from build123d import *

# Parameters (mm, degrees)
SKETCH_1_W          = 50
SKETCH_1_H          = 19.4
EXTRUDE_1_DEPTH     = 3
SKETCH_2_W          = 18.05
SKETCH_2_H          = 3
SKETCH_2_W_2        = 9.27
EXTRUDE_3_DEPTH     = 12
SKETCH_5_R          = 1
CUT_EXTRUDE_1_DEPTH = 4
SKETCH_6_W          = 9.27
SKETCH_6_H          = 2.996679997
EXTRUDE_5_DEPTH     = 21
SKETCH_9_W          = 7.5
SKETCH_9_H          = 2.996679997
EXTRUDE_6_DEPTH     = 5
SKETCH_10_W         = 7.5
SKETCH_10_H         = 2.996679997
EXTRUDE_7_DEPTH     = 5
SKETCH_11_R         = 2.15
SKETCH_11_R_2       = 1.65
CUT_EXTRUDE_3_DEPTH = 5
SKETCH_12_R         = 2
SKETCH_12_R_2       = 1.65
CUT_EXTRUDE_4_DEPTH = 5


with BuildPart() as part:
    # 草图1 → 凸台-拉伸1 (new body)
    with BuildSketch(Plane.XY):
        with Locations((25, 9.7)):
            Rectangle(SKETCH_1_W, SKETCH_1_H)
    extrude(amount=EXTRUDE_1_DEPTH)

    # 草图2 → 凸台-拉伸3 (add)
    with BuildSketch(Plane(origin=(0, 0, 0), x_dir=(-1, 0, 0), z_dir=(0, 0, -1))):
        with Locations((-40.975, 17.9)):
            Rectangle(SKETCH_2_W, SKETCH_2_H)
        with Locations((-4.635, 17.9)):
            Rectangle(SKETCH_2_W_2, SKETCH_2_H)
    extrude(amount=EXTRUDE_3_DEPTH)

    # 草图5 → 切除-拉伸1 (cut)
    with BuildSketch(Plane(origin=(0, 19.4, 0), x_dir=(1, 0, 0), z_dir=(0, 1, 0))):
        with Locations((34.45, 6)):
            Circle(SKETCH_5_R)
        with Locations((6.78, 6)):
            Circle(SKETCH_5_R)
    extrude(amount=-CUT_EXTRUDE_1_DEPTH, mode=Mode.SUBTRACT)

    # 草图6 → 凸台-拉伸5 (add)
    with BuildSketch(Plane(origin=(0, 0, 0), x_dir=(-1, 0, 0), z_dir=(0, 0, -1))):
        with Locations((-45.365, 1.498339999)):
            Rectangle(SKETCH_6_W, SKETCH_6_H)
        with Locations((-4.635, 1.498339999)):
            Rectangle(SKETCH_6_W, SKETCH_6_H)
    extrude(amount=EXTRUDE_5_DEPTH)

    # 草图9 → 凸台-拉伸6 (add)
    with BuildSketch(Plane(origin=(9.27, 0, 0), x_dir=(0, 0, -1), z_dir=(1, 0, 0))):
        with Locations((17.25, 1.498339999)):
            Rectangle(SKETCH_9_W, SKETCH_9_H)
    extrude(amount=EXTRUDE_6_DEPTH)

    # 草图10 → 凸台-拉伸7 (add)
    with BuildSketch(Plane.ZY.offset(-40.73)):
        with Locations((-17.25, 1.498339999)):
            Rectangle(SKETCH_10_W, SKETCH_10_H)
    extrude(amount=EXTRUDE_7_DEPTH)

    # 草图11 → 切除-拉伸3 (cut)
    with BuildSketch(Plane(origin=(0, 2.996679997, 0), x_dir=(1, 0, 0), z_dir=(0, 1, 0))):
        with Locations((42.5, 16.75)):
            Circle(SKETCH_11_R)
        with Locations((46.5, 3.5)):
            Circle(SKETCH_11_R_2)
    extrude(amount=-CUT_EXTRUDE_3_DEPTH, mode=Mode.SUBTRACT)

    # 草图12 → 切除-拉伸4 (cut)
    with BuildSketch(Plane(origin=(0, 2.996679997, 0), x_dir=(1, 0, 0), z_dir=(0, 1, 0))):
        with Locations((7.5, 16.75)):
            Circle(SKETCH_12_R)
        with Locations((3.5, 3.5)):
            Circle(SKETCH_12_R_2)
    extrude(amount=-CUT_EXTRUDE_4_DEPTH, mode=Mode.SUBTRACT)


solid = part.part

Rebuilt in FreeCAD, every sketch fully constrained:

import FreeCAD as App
import Part
import Sketcher
from FreeCAD import Vector


def add_polygon(sketch, points):
    """Adds a closed chain of lines whose ends are joined by coincident constraints."""
    first, n = sketch.GeometryCount, len(points)
    for a, b in zip(points, points[1:] + points[:1]):
        sketch.addGeometry(Part.LineSegment(App.Vector(*a, 0), App.Vector(*b, 0)), False)
    for i in range(n):
        sketch.addConstraint(Sketcher.Constraint("Coincident", first + i, 2, first + (i + 1) % n, 1))

doc = App.newDocument("Part")
body = doc.addObject("PartDesign::Body", "Body")

# Sketch on XY plane
sketch1 = doc.addObject("Sketcher::SketchObject", "Sketch")
body.addObject(sketch1)
sketch1.AttachmentSupport = (doc.XY_Plane, [""])
sketch1.MapMode = "FlatFace"
add_polygon(sketch1, [(0, 19), (0, 0), (50, 0), (50, 19)])  # lines 0-3
sketch1.addConstraint([
    Sketcher.Constraint("Vertical", 0),
    Sketcher.Constraint("Horizontal", 1),
    Sketcher.Constraint("Vertical", 2),
    Sketcher.Constraint("Horizontal", 3),
    Sketcher.Constraint("Coincident", 0, 2, -1, 1),
    Sketcher.Constraint("DistanceX", 1, 1, 1, 2, 50.0),
    Sketcher.Constraint("DistanceY", 0, 2, 0, 1, 19.4),
])
pad1 = doc.addObject("PartDesign::Pad", "Pad")
body.addObject(pad1)
pad1.Profile = sketch1
pad1.Length = 3

# Sketch on XY plane
sketch2 = doc.addObject("Sketcher::SketchObject", "Sketch001")
body.addObject(sketch2)
sketch2.AttachmentSupport = (doc.XY_Plane, [""])
sketch2.MapMode = "FlatFace"
add_polygon(sketch2, [(50, 19.4), (50, 16.4), (31.9, 16.4), (31.9, 19.4)])  # lines 0-3
add_polygon(sketch2, [(9.3, 19.4), (9.3, 16.4), (0, 16.4), (0, 19.4)])  # lines 4-7
sketch2.addConstraint([
    Sketcher.Constraint("Vertical", 0),
    Sketcher.Constraint("Horizontal", 1),
    Sketcher.Constraint("Vertical", 2),
    Sketcher.Constraint("Horizontal", 3),
    Sketcher.Constraint("Vertical", 4),
    Sketcher.Constraint("Horizontal", 5),
    Sketcher.Constraint("Vertical", 6),
    Sketcher.Constraint("Horizontal", 7),
    Sketcher.Constraint("PointOnObject", 5, 2, -2),
    Sketcher.Constraint("Horizontal", 1, 2, 4, 2),
    Sketcher.Constraint("Horizontal", 3, 2, 6, 2),
    Sketcher.Constraint("DistanceY", 0, 2, 0, 1, 3.0),
    Sketcher.Constraint("DistanceX", -1, 1, 0, 2, 50.0),
    Sketcher.Constraint("DistanceX", 1, 2, 1, 1, 18.05),
    Sketcher.Constraint("DistanceX", 5, 2, 5, 1, 9.27),
    Sketcher.Constraint("DistanceY", -1, 1, 0, 2, 16.4),
])
pad2 = doc.addObject("PartDesign::Pad", "Pad001")
body.addObject(pad2)
pad2.Profile = sketch2
pad2.Length = 12
pad2.Reversed = True

# Sketch on XZ plane
sketch3 = doc.addObject("Sketcher::SketchObject", "Sketch002")
body.addObject(sketch3)
sketch3.AttachmentSupport = (doc.XZ_Plane, [""])
sketch3.MapMode = "FlatFace"
sketch3.AttachmentOffset = App.Placement(Vector(0, 0, -19.4), App.Rotation())
sketch3.addGeometry([
    Part.Circle(Vector(34.5, -6, 0), Vector(0, 0, 1), 1),
    Part.Circle(Vector(6.8, -6, 0), Vector(0, 0, 1), 1),
], False)
sketch3.addConstraint([
    Sketcher.Constraint("Equal", 0, 1),
    Sketcher.Constraint("Horizontal", 0, 3, 1, 3),
    Sketcher.Constraint("Diameter", 0, 2.0),
    Sketcher.Constraint("DistanceY", 0, 3, -1, 1, 6.0),
    Sketcher.Constraint("DistanceX", -1, 1, 0, 3, 34.45),
    Sketcher.Constraint("DistanceX", -1, 1, 1, 3, 6.78),
])
pocket1 = doc.addObject("PartDesign::Pocket", "Pocket")
body.addObject(pocket1)
pocket1.Profile = sketch3
pocket1.Length = 4
pocket1.Reversed = True

# Sketch on XY plane
sketch4 = doc.addObject("Sketcher::SketchObject", "Sketch003")
body.addObject(sketch4)
sketch4.AttachmentSupport = (doc.XY_Plane, [""])
sketch4.MapMode = "FlatFace"
add_polygon(sketch4, [(50, 3), (50, 0), (40.7, 0), (40.7, 3)])  # lines 0-3
add_polygon(sketch4, [(9.3, 3), (9.3, 0), (0, 0), (0, 3)])  # lines 4-7
sketch4.addConstraint([
    Sketcher.Constraint("Vertical", 0),
    Sketcher.Constraint("Horizontal", 1),
    Sketcher.Constraint("Vertical", 2),
    Sketcher.Constraint("Horizontal", 3),
    Sketcher.Constraint("Vertical", 4),
    Sketcher.Constraint("Horizontal", 5),
    Sketcher.Constraint("Vertical", 6),
    Sketcher.Constraint("Horizontal", 7),
    Sketcher.Constraint("Coincident", 5, 2, -1, 1),
    Sketcher.Constraint("PointOnObject", 0, 2, -1),
    Sketcher.Constraint("Horizontal", 3, 2, 6, 2),
    Sketcher.Constraint("Equal", 3, 5),
    Sketcher.Constraint("DistanceX", -1, 1, 0, 2, 50.0),
    Sketcher.Constraint("DistanceX", 1, 2, 1, 1, 9.27),
    Sketcher.Constraint("DistanceY", 0, 2, 0, 1, 2.99668),
])
pad3 = doc.addObject("PartDesign::Pad", "Pad002")
body.addObject(pad3)
pad3.Profile = sketch4
pad3.Length = 21
pad3.Reversed = True

# Sketch on YZ plane
sketch5 = doc.addObject("Sketcher::SketchObject", "Sketch004")
body.addObject(sketch5)
sketch5.AttachmentSupport = (doc.YZ_Plane, [""])
sketch5.MapMode = "FlatFace"
sketch5.AttachmentOffset = App.Placement(Vector(0, 0, 9.27), App.Rotation())
add_polygon(sketch5, [(3, -13.5), (0, -13.5), (0, -21), (3, -21)])  # lines 0-3
sketch5.addConstraint([
    Sketcher.Constraint("Horizontal", 0),
    Sketcher.Constraint("Vertical", 1),
    Sketcher.Constraint("Horizontal", 2),
    Sketcher.Constraint("Vertical", 3),
    Sketcher.Constraint("PointOnObject", 0, 2, -2),
    Sketcher.Constraint("DistanceY", 1, 2, 1, 1, 7.5),
    Sketcher.Constraint("DistanceY", 1, 2, -1, 1, 21.0),
    Sketcher.Constraint("DistanceX", 0, 2, 0, 1, 2.99668),
])
pad4 = doc.addObject("PartDesign::Pad", "Pad003")
body.addObject(pad4)
pad4.Profile = sketch5
pad4.Length = 5

# Sketch on YZ plane
sketch6 = doc.addObject("Sketcher::SketchObject", "Sketch005")
body.addObject(sketch6)
sketch6.AttachmentSupport = (doc.YZ_Plane, [""])
sketch6.MapMode = "FlatFace"
sketch6.AttachmentOffset = App.Placement(Vector(0, 0, 40.73), App.Rotation())
add_polygon(sketch6, [(3, -21), (0, -21), (0, -13.5), (3, -13.5)])  # lines 0-3
sketch6.addConstraint([
    Sketcher.Constraint("Horizontal", 0),
    Sketcher.Constraint("Vertical", 1),
    Sketcher.Constraint("Horizontal", 2),
    Sketcher.Constraint("Vertical", 3),
    Sketcher.Constraint("PointOnObject", 0, 2, -2),
    Sketcher.Constraint("DistanceY", 1, 1, 1, 2, 7.5),
    Sketcher.Constraint("DistanceY", 0, 2, -1, 1, 21.0),
    Sketcher.Constraint("DistanceX", 0, 2, 0, 1, 2.99668),
])
pad5 = doc.addObject("PartDesign::Pad", "Pad004")
body.addObject(pad5)
pad5.Profile = sketch6
pad5.Length = 5
pad5.Reversed = True

# Sketch on XZ plane
sketch7 = doc.addObject("Sketcher::SketchObject", "Sketch006")
body.addObject(sketch7)
sketch7.AttachmentSupport = (doc.XZ_Plane, [""])
sketch7.MapMode = "FlatFace"
sketch7.AttachmentOffset = App.Placement(Vector(0, 0, -2.99668), App.Rotation())
sketch7.addGeometry([
    Part.Circle(Vector(42.5, -16.8, 0), Vector(0, 0, 1), 2.1),
    Part.Circle(Vector(46.5, -3.5, 0), Vector(0, 0, 1), 1.6),
], False)
sketch7.addConstraint([
    Sketcher.Constraint("Diameter", 0, 4.3),
    Sketcher.Constraint("Diameter", 1, 3.3),
    Sketcher.Constraint("DistanceX", 0, 3, 1, 3, 4.0),
    Sketcher.Constraint("DistanceX", -1, 1, 0, 3, 42.5),
    Sketcher.Constraint("DistanceY", 1, 3, -1, 1, 3.5),
    Sketcher.Constraint("DistanceY", 0, 3, -1, 1, 16.75),
])
pocket2 = doc.addObject("PartDesign::Pocket", "Pocket001")
body.addObject(pocket2)
pocket2.Profile = sketch7
pocket2.Length = 5
pocket2.Reversed = True

# Sketch on XZ plane
sketch8 = doc.addObject("Sketcher::SketchObject", "Sketch007")
body.addObject(sketch8)
sketch8.AttachmentSupport = (doc.XZ_Plane, [""])
sketch8.MapMode = "FlatFace"
sketch8.AttachmentOffset = App.Placement(Vector(0, 0, -2.99668), App.Rotation())
sketch8.addGeometry([
    Part.Circle(Vector(7.5, -16.8, 0), Vector(0, 0, 1), 2),
    Part.Circle(Vector(3.5, -3.5, 0), Vector(0, 0, 1), 1.6),
], False)
sketch8.addConstraint([
    Sketcher.Constraint("Diameter", 0, 4.0),
    Sketcher.Constraint("Diameter", 1, 3.3),
    Sketcher.Constraint("DistanceX", 1, 3, 0, 3, 4.0),
    Sketcher.Constraint("DistanceX", -1, 1, 0, 3, 7.5),
    Sketcher.Constraint("DistanceY", 1, 3, -1, 1, 3.5),
    Sketcher.Constraint("DistanceY", 0, 3, -1, 1, 16.75),
])
pocket3 = doc.addObject("PartDesign::Pocket", "Pocket002")
body.addObject(pocket3)
pocket3.Profile = sketch8
pocket3.Length = 5
pocket3.Reversed = True

doc.recompute()
